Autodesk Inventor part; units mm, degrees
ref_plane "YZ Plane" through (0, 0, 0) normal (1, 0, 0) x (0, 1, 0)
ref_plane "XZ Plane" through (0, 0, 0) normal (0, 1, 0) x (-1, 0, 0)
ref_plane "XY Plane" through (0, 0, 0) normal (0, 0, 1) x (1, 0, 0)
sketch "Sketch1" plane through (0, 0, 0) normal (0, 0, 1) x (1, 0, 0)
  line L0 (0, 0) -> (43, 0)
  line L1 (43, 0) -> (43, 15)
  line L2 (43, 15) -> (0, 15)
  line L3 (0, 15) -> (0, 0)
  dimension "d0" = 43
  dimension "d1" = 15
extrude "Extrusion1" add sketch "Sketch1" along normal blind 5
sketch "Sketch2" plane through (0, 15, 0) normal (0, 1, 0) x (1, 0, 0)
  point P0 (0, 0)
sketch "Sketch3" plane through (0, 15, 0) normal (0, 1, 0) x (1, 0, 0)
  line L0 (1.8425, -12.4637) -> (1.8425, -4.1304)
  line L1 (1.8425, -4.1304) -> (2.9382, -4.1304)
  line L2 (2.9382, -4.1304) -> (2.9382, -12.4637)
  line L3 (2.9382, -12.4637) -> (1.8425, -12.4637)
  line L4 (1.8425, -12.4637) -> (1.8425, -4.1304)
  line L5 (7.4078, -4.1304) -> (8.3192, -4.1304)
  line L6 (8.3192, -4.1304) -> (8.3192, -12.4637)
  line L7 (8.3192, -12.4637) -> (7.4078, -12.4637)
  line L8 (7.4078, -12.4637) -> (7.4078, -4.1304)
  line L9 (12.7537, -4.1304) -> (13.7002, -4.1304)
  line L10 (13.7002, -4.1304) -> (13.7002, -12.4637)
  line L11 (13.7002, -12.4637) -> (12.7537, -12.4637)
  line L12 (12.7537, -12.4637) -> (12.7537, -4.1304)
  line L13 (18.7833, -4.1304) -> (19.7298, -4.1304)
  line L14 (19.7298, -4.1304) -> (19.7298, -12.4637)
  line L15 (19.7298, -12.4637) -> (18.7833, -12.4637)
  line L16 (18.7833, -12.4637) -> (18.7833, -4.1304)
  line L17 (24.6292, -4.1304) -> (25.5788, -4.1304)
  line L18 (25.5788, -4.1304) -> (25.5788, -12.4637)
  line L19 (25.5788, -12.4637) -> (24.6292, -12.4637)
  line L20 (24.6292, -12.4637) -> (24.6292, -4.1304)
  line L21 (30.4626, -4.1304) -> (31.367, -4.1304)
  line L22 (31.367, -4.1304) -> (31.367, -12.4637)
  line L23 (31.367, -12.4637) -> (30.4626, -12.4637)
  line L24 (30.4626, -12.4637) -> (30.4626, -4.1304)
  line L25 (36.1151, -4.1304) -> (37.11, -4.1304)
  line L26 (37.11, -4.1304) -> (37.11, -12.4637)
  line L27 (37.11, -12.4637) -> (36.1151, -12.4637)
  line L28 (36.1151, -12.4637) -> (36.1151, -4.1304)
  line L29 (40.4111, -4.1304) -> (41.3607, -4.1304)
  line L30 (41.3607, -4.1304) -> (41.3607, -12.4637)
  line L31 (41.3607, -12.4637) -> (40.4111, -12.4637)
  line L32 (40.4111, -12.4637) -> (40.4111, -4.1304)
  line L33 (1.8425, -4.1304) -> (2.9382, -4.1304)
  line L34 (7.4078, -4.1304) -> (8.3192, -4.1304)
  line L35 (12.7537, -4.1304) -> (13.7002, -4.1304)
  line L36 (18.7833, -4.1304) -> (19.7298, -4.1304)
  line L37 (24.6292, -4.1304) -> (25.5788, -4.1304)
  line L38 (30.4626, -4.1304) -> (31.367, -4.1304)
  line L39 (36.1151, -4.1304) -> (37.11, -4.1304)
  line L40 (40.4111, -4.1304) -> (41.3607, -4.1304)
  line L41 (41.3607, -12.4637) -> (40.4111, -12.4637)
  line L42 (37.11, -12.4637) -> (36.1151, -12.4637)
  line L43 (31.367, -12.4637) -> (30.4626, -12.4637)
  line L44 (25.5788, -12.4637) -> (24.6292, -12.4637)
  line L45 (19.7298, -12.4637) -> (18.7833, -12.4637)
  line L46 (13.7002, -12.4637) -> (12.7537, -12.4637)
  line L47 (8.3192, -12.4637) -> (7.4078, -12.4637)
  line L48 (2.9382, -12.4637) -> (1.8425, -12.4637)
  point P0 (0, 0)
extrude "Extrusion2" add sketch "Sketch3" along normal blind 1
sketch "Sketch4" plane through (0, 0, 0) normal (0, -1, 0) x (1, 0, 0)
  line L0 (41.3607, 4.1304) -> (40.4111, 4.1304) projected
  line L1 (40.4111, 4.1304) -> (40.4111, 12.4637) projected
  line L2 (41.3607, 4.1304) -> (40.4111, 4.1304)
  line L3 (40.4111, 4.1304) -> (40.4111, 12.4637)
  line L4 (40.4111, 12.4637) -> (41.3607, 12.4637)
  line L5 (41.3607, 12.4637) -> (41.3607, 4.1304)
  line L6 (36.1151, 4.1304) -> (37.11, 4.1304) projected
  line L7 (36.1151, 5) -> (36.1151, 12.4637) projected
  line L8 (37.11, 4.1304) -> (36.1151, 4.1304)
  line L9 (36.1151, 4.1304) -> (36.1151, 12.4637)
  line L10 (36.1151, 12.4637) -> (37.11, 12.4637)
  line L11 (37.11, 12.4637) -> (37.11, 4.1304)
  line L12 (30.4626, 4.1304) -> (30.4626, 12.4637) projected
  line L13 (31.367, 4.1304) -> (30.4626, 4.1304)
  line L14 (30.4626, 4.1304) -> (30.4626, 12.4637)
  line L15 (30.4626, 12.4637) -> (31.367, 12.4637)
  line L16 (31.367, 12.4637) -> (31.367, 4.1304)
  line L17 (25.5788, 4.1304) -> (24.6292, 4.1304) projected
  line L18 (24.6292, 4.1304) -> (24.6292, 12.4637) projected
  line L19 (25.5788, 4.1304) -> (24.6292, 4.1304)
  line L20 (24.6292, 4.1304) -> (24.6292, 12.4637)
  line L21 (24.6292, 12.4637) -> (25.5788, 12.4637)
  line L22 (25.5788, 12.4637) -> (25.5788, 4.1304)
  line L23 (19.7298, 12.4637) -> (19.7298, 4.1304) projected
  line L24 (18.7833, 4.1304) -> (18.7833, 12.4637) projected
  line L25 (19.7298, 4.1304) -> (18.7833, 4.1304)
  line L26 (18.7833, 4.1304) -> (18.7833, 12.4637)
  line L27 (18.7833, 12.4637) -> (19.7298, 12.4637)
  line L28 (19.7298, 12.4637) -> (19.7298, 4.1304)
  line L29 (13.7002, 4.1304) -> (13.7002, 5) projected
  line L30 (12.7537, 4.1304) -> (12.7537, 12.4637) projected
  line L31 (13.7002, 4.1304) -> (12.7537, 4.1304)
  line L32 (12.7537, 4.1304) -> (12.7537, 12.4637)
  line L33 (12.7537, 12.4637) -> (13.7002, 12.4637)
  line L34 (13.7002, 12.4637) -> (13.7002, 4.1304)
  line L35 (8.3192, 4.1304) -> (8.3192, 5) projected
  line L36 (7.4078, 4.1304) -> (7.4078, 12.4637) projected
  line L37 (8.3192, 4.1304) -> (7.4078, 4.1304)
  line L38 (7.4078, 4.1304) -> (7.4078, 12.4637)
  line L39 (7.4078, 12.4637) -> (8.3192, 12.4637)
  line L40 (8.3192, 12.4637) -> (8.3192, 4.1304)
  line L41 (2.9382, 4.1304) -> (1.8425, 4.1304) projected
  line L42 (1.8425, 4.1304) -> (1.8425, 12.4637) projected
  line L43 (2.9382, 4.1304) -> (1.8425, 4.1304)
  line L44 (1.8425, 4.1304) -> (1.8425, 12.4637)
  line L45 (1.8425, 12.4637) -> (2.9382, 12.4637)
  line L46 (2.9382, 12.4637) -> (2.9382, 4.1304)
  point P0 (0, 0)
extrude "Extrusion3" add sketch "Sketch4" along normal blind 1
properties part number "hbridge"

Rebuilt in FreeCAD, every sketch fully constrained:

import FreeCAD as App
import Part
import Sketcher
Q = App.Units.Quantity


def add_polygon(sketch, points):
    """Adds a closed chain of lines whose ends are joined by coincident constraints."""
    first, n = sketch.GeometryCount, len(points)
    for a, b in zip(points, points[1:] + points[:1]):
        sketch.addGeometry(Part.LineSegment(App.Vector(*a, 0), App.Vector(*b, 0)), False)
    for i in range(n):
        sketch.addConstraint(Sketcher.Constraint("Coincident", first + i, 2, first + (i + 1) % n, 1))

doc = App.newDocument("Part")
body = doc.addObject("PartDesign::Body", "Body")

# Sketch on XY plane
sketch1 = body.newObject("Sketcher::SketchObject", "Sketch")
sketch1.AttachmentSupport = (doc.getObject("XY_Plane"), [""])
sketch1.MapMode = "FlatFace"
add_polygon(sketch1, [(0, 15), (0, 0), (43, 0), (43, 15)])  # lines 0-3
sketch1.addConstraint([
    Sketcher.Constraint("Vertical", 0),
    Sketcher.Constraint("Horizontal", 1),
    Sketcher.Constraint("Vertical", 2),
    Sketcher.Constraint("Horizontal", 3),
    Sketcher.Constraint("Coincident", 0, 2, -1, 1),
    Sketcher.Constraint("DistanceX", 1, 1, 1, 2, Q("43 mm")),
    Sketcher.Constraint("DistanceY", 0, 2, 0, 1, Q("15 mm")),
])
pad1 = body.newObject("PartDesign::Pad", "Pad")
pad1.Profile = sketch1
pad1.Length = 5

# Sketch on XZ plane
sketch2 = body.newObject("Sketcher::SketchObject", "Sketch001")
sketch2.AttachmentSupport = (doc.getObject("XZ_Plane"), [""])
sketch2.MapMode = "FlatFace"
sketch2.AttachmentOffset = App.Placement(App.Vector(0, 0, -15), App.Rotation())
add_polygon(sketch2, [(1.8425, 4.1304), (1.8425, 12.4637), (2.9382, 12.4637), (2.9382, 4.1304)])  # lines 0-3
add_polygon(sketch2, [(8.3192, 4.1304), (7.4078, 4.1304), (7.4078, 12.4637), (8.3192, 12.4637)])  # lines 4-7
add_polygon(sketch2, [(13.7002, 4.1304), (12.7537, 4.1304), (12.7537, 12.4637), (13.7002, 12.4637)])  # lines 8-11
add_polygon(sketch2, [(19.7298, 4.1304), (18.7833, 4.1304), (18.7833, 12.4637), (19.7298, 12.4637)])  # lines 12-15
add_polygon(sketch2, [(25.5788, 4.1304), (24.6292, 4.1304), (24.6292, 12.4637), (25.5788, 12.4637)])  # lines 16-19
add_polygon(sketch2, [(31.367, 4.1304), (30.4626, 4.1304), (30.4626, 12.4637), (31.367, 12.4637)])  # lines 20-23
add_polygon(sketch2, [(37.11, 4.1304), (36.1151, 4.1304), (36.1151, 12.4637), (37.11, 12.4637)])  # lines 24-27
add_polygon(sketch2, [(41.3607, 4.1304), (40.4111, 4.1304), (40.4111, 12.4637), (41.3607, 12.4637)])  # lines 28-31
sketch2.addConstraint([
    Sketcher.Constraint("Vertical", 0),
    Sketcher.Constraint("Horizontal", 1),
    Sketcher.Constraint("Vertical", 2),
    Sketcher.Constraint("Horizontal", 3),
    Sketcher.Constraint("Horizontal", 4),
    Sketcher.Constraint("Vertical", 5),
    Sketcher.Constraint("Horizontal", 6),
    Sketcher.Constraint("Vertical", 7),
    Sketcher.Constraint("Horizontal", 8),
    Sketcher.Constraint("Vertical", 9),
    Sketcher.Constraint("Horizontal", 10),
    Sketcher.Constraint("Vertical", 11),
    Sketcher.Constraint("Horizontal", 12),
    Sketcher.Constraint("Vertical", 13),
    Sketcher.Constraint("Horizontal", 14),
    Sketcher.Constraint("Vertical", 15),
    Sketcher.Constraint("Horizontal", 16),
    Sketcher.Constraint("Vertical", 17),
    Sketcher.Constraint("Horizontal", 18),
    Sketcher.Constraint("Vertical", 19),
    Sketcher.Constraint("Horizontal", 20),
    Sketcher.Constraint("Vertical", 21),
    Sketcher.Constraint("Horizontal", 22),
    Sketcher.Constraint("Vertical", 23),
    Sketcher.Constraint("Horizontal", 24),
    Sketcher.Constraint("Vertical", 25),
    Sketcher.Constraint("Horizontal", 26),
    Sketcher.Constraint("Vertical", 27),
    Sketcher.Constraint("Horizontal", 28),
    Sketcher.Constraint("Vertical", 29),
    Sketcher.Constraint("Horizontal", 30),
    Sketcher.Constraint("Vertical", 31),
    Sketcher.Constraint("Horizontal", 3, 2, 4, 2),
    Sketcher.Constraint("Horizontal", 1, 2, 5, 2),
    Sketcher.Constraint("Horizontal", 7, 2, 8, 2),
    Sketcher.Constraint("Horizontal", 6, 2, 9, 2),
    Sketcher.Constraint("Horizontal", 11, 2, 12, 2),
    Sketcher.Constraint("Horizontal", 10, 2, 13, 2),
    Sketcher.Constraint("Horizontal", 15, 2, 16, 2),
    Sketcher.Constraint("Horizontal", 14, 2, 17, 2),
    Sketcher.Constraint("Horizontal", 19, 2, 20, 2),
    Sketcher.Constraint("Horizontal", 18, 2, 21, 2),
    Sketcher.Constraint("Horizontal", 23, 2, 24, 2),
    Sketcher.Constraint("Horizontal", 22, 2, 25, 2),
    Sketcher.Constraint("Horizontal", 27, 2, 28, 2),
    Sketcher.Constraint("Horizontal", 26, 2, 29, 2),
    Sketcher.Constraint("Equal", 10, 12),
    Sketcher.Constraint("Equal", 18, 28),
    Sketcher.Constraint("DistanceX", 24, 2, 24, 1, Q("0.995 mm")),
    Sketcher.Constraint("DistanceX", -1, 1, 26, 2, Q("37.11 mm")),
    Sketcher.Constraint("DistanceX", 1, 1, 1, 2, Q("1.0957 mm")),
    Sketcher.Constraint("DistanceX", 4, 2, 4, 1, Q("0.9114 mm")),
    Sketcher.Constraint("DistanceX", 8, 2, 8, 1, Q("0.9465 mm")),
    Sketcher.Constraint("DistanceX", 16, 2, 16, 1, Q("0.9496 mm")),
    Sketcher.Constraint("DistanceX", 20, 2, 20, 1, Q("0.9044 mm")),
    Sketcher.Constraint("DistanceY", 0, 1, 0, 2, Q("8.3333 mm")),
    Sketcher.Constraint("DistanceX", -1, 1, 22, 2, Q("31.367 mm")),
    Sketcher.Constraint("DistanceX", -1, 1, 28, 2, Q("40.411 mm")),
    Sketcher.Constraint("DistanceX", 1, 2, 6, 2, Q("5.381 mm")),
    Sketcher.Constraint("DistanceX", 4, 2, 8, 2, Q("5.346 mm")),
    Sketcher.Constraint("DistanceX", 11, 2, 12, 2, Q("5.083 mm")),
    Sketcher.Constraint("DistanceX", 12, 2, 16, 2, Q("5.846 mm")),
    Sketcher.Constraint("DistanceX", -1, 1, 0, 2, Q("1.8425 mm")),
    Sketcher.Constraint("DistanceY", -1, 1, 0, 2, Q("12.4637 mm")),
])
pad2 = body.newObject("PartDesign::Pad", "Pad001")
pad2.Profile = sketch2
pad2.Length = 1
pad2.Reversed = True

# Sketch on XZ plane
sketch3 = body.newObject("Sketcher::SketchObject", "Sketch002")
sketch3.AttachmentSupport = (doc.getObject("XZ_Plane"), [""])
sketch3.MapMode = "FlatFace"
add_polygon(sketch3, [(40.4111, 4.1304), (41.3607, 4.1304), (41.3607, 12.4637), (40.4111, 12.4637)])  # lines 0-3
add_polygon(sketch3, [(36.1151, 12.4637), (36.1151, 4.1304), (37.11, 4.1304), (37.11, 12.4637)])  # lines 4-7
add_polygon(sketch3, [(30.4626, 12.4637), (30.4626, 4.1304), (31.367, 4.1304), (31.367, 12.4637)])  # lines 8-11
add_polygon(sketch3, [(24.6292, 4.1304), (25.5788, 4.1304), (25.5788, 12.4637), (24.6292, 12.4637)])  # lines 12-15
add_polygon(sketch3, [(19.7298, 4.1304), (19.7298, 12.4637), (18.7833, 12.4637), (18.7833, 4.1304)])  # lines 16-19
add_polygon(sketch3, [(12.7537, 4.1304), (13.7002, 4.1304), (13.7002, 12.4637), (12.7537, 12.4637)])  # lines 20-23
add_polygon(sketch3, [(7.4078, 4.1304), (8.3192, 4.1304), (8.3192, 12.4637), (7.4078, 12.4637)])  # lines 24-27
add_polygon(sketch3, [(1.8425, 4.1304), (2.9382, 4.1304), (2.9382, 12.4637), (1.8425, 12.4637)])  # lines 28-31
sketch3.addConstraint([
    Sketcher.Constraint("Horizontal", 0),
    Sketcher.Constraint("Vertical", 1),
    Sketcher.Constraint("Horizontal", 2),
    Sketcher.Constraint("Vertical", 3),
    Sketcher.Constraint("Vertical", 4),
    Sketcher.Constraint("Horizontal", 5),
    Sketcher.Constraint("Vertical", 6),
    Sketcher.Constraint("Horizontal", 7),
    Sketcher.Constraint("Vertical", 8),
    Sketcher.Constraint("Horizontal", 9),
    Sketcher.Constraint("Vertical", 10),
    Sketcher.Constraint("Horizontal", 11),
    Sketcher.Constraint("Horizontal", 12),
    Sketcher.Constraint("Vertical", 13),
    Sketcher.Constraint("Horizontal", 14),
    Sketcher.Constraint("Vertical", 15),
    Sketcher.Constraint("Vertical", 16),
    Sketcher.Constraint("Horizontal", 17),
    Sketcher.Constraint("Vertical", 18),
    Sketcher.Constraint("Horizontal", 19),
    Sketcher.Constraint("Horizontal", 20),
    Sketcher.Constraint("Vertical", 21),
    Sketcher.Constraint("Horizontal", 22),
    Sketcher.Constraint("Vertical", 23),
    Sketcher.Constraint("Horizontal", 24),
    Sketcher.Constraint("Vertical", 25),
    Sketcher.Constraint("Horizontal", 26),
    Sketcher.Constraint("Vertical", 27),
    Sketcher.Constraint("Horizontal", 28),
    Sketcher.Constraint("Vertical", 29),
    Sketcher.Constraint("Horizontal", 30),
    Sketcher.Constraint("Vertical", 31),
    Sketcher.Constraint("Horizontal", 3, 2, 4, 2),
    Sketcher.Constraint("Horizontal", 2, 2, 6, 2),
    Sketcher.Constraint("Horizontal", 5, 2, 8, 2),
    Sketcher.Constraint("Horizontal", 7, 2, 10, 2),
    Sketcher.Constraint("Horizontal", 9, 2, 12, 2),
    Sketcher.Constraint("Horizontal", 11, 2, 13, 2),
    Sketcher.Constraint("Horizontal", 14, 2, 16, 2),
    Sketcher.Constraint("Horizontal", 15, 2, 18, 2),
    Sketcher.Constraint("Horizontal", 19, 2, 20, 2),
    Sketcher.Constraint("Horizontal", 17, 2, 21, 2),
    Sketcher.Constraint("Horizontal", 23, 2, 24, 2),
    Sketcher.Constraint("Horizontal", 22, 2, 25, 2),
    Sketcher.Constraint("Horizontal", 27, 2, 28, 2),
    Sketcher.Constraint("Horizontal", 26, 2, 29, 2),
    Sketcher.Constraint("Equal", 2, 12),
    Sketcher.Constraint("Equal", 19, 20),
    Sketcher.Constraint("DistanceX", 5, 1, 5, 2, Q("0.995 mm")),
    Sketcher.Constraint("DistanceX", -1, 1, 5, 2, Q("37.11 mm")),
    Sketcher.Constraint("DistanceX", 0, 1, 0, 2, Q("0.9496 mm")),
    Sketcher.Constraint("DistanceX", 9, 1, 9, 2, Q("0.9044 mm")),
    Sketcher.Constraint("DistanceX", 17, 2, 17, 1, Q("0.9465 mm")),
    Sketcher.Constraint("DistanceX", 24, 1, 24, 2, Q("0.9114 mm")),
    Sketcher.Constraint("DistanceX", 28, 1, 28, 2, Q("1.0957 mm")),
    Sketcher.Constraint("DistanceY", 1, 1, 1, 2, Q("8.3333 mm")),
    Sketcher.Constraint("DistanceX", -1, 1, 2, 2, Q("40.411 mm")),
    Sketcher.Constraint("DistanceX", -1, 1, 9, 2, Q("31.367 mm")),
    Sketcher.Constraint("DistanceX", 16, 2, 13, 2, Q("5.849 mm")),
    Sketcher.Constraint("DistanceX", 20, 2, 18, 2, Q("5.083 mm")),
    Sketcher.Constraint("DistanceX", 24, 2, 20, 2, Q("5.381 mm")),
    Sketcher.Constraint("DistanceX", 28, 2, 24, 2, Q("5.381 mm")),
    Sketcher.Constraint("DistanceY", -1, 1, 0, 2, Q("4.1304 mm")),
    Sketcher.Constraint("DistanceX", -1, 1, 12, 2, Q("25.5788 mm")),
])
pad3 = body.newObject("PartDesign::Pad", "Pad002")
pad3.Profile = sketch3
pad3.Length = 1

doc.recompute()
